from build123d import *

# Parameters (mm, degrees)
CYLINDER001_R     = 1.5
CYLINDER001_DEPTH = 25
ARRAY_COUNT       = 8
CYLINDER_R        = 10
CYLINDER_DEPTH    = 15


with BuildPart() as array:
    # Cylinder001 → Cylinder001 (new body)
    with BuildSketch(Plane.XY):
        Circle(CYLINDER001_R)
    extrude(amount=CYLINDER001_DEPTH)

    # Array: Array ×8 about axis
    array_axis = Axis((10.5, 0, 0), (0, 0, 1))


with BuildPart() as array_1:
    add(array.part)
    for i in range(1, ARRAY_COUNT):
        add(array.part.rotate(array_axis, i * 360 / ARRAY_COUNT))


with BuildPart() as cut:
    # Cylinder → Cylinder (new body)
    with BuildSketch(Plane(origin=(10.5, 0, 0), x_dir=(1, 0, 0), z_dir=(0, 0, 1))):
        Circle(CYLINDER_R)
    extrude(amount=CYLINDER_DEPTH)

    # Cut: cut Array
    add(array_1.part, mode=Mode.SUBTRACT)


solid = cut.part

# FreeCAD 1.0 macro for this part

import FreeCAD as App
import Part
import Sketcher
from FreeCAD import Vector
Q = App.Units.Quantity

doc = App.newDocument("Part")
body = doc.addObject("PartDesign::Body", "Body")

# Sketch on XY plane
sketch1 = doc.addObject("Sketcher::SketchObject", "Sketch")
body.addObject(sketch1)
sketch1.AttachmentSupport = (doc.XY_Plane, [""])
sketch1.MapMode = "FlatFace"
sketch1.addGeometry(Part.Circle(Vector(0, 0, 0), Vector(0, 0, 1), 1.5), False)
sketch1.addConstraint([
    Sketcher.Constraint("Coincident", 0, 3, -1, 1),
    Sketcher.Constraint("Diameter", 0, Q("3 mm")),
])
pad1 = doc.addObject("PartDesign::Pad", "Pad")
body.addObject(pad1)
pad1.Profile = sketch1
pad1.Length = 25
body2 = doc.addObject("PartDesign::Body", "Body001")
body2.AllowCompound = True
doc.recompute()

body2.BaseFeature = body
doc.recompute()

body3 = doc.addObject("PartDesign::Body", "Body002")
body3.BaseFeature = body
body3.Placement = App.Placement(Vector(3.075379, -7.424621, 0), App.Rotation(Vector(0, 0, 1), 45))
boolean = doc.addObject("PartDesign::Boolean", "Boolean")
body2.addObject(boolean)
boolean.Type = "Fuse"
boolean.addObjects([body3])
doc.recompute()

body4 = doc.addObject("PartDesign::Body", "Body003")
body4.BaseFeature = body
body4.Placement = App.Placement(Vector(10.5, -10.5, 0), App.Rotation(Vector(0, 0, 1), 90))
boolean2 = doc.addObject("PartDesign::Boolean", "Boolean001")
body2.addObject(boolean2)
boolean2.Type = "Fuse"
boolean2.addObjects([body4])
doc.recompute()

body5 = doc.addObject("PartDesign::Body", "Body004")
body5.BaseFeature = body
body5.Placement = App.Placement(Vector(17.924621, -7.424621, 0), App.Rotation(Vector(0, 0, 1), 135))
boolean3 = doc.addObject("PartDesign::Boolean", "Boolean002")
body2.addObject(boolean3)
boolean3.Type = "Fuse"
boolean3.addObjects([body5])
doc.recompute()

body6 = doc.addObject("PartDesign::Body", "Body005")
body6.BaseFeature = body
body6.Placement = App.Placement(Vector(21, 0, 0), App.Rotation(Vector(0, 0, 1), 180))
boolean4 = doc.addObject("PartDesign::Boolean", "Boolean003")
body2.addObject(boolean4)
boolean4.Type = "Fuse"
boolean4.addObjects([body6])
doc.recompute()

body7 = doc.addObject("PartDesign::Body", "Body006")
body7.BaseFeature = body
body7.Placement = App.Placement(Vector(17.924621, 7.424621, 0), App.Rotation(Vector(0, 0, 1), 225))
boolean5 = doc.addObject("PartDesign::Boolean", "Boolean004")
body2.addObject(boolean5)
boolean5.Type = "Fuse"
boolean5.addObjects([body7])
doc.recompute()

body8 = doc.addObject("PartDesign::Body", "Body007")
body8.BaseFeature = body
body8.Placement = App.Placement(Vector(10.5, 10.5, 0), App.Rotation(Vector(0, 0, 1), 270))
boolean6 = doc.addObject("PartDesign::Boolean", "Boolean005")
body2.addObject(boolean6)
boolean6.Type = "Fuse"
boolean6.addObjects([body8])
doc.recompute()

body.Placement = App.Placement(Vector(3.075379, 7.424621, 0), App.Rotation(Vector(0, 0, 1), 315))
boolean7 = doc.addObject("PartDesign::Boolean", "Boolean006")
body2.addObject(boolean7)
boolean7.Type = "Fuse"
boolean7.addObjects([body])
body9 = doc.addObject("PartDesign::Body", "Body008")

# Sketch on XY plane
sketch2 = doc.addObject("Sketcher::SketchObject", "Sketch001")
body9.addObject(sketch2)
sketch2.AttachmentSupport = (doc.getObject("XY_Plane008"), [""])
sketch2.MapMode = "FlatFace"
sketch2.addGeometry(Part.Circle(Vector(10, 0, 0), Vector(0, 0, 1), 10), False)
sketch2.addConstraint([
    Sketcher.Constraint("PointOnObject", 0, 3, -1),
    Sketcher.Constraint("Diameter", 0, Q("20 mm")),
    Sketcher.Constraint("DistanceX", -1, 1, 0, 3, Q("10.5 mm")),
])
pad2 = doc.addObject("PartDesign::Pad", "Pad001")
body9.addObject(pad2)
pad2.Profile = sketch2
pad2.Length = 15
doc.recompute()

boolean8 = doc.addObject("PartDesign::Boolean", "Boolean007")
body9.addObject(boolean8)
boolean8.Type = "Cut"
boolean8.addObjects([body2])

doc.recompute()
